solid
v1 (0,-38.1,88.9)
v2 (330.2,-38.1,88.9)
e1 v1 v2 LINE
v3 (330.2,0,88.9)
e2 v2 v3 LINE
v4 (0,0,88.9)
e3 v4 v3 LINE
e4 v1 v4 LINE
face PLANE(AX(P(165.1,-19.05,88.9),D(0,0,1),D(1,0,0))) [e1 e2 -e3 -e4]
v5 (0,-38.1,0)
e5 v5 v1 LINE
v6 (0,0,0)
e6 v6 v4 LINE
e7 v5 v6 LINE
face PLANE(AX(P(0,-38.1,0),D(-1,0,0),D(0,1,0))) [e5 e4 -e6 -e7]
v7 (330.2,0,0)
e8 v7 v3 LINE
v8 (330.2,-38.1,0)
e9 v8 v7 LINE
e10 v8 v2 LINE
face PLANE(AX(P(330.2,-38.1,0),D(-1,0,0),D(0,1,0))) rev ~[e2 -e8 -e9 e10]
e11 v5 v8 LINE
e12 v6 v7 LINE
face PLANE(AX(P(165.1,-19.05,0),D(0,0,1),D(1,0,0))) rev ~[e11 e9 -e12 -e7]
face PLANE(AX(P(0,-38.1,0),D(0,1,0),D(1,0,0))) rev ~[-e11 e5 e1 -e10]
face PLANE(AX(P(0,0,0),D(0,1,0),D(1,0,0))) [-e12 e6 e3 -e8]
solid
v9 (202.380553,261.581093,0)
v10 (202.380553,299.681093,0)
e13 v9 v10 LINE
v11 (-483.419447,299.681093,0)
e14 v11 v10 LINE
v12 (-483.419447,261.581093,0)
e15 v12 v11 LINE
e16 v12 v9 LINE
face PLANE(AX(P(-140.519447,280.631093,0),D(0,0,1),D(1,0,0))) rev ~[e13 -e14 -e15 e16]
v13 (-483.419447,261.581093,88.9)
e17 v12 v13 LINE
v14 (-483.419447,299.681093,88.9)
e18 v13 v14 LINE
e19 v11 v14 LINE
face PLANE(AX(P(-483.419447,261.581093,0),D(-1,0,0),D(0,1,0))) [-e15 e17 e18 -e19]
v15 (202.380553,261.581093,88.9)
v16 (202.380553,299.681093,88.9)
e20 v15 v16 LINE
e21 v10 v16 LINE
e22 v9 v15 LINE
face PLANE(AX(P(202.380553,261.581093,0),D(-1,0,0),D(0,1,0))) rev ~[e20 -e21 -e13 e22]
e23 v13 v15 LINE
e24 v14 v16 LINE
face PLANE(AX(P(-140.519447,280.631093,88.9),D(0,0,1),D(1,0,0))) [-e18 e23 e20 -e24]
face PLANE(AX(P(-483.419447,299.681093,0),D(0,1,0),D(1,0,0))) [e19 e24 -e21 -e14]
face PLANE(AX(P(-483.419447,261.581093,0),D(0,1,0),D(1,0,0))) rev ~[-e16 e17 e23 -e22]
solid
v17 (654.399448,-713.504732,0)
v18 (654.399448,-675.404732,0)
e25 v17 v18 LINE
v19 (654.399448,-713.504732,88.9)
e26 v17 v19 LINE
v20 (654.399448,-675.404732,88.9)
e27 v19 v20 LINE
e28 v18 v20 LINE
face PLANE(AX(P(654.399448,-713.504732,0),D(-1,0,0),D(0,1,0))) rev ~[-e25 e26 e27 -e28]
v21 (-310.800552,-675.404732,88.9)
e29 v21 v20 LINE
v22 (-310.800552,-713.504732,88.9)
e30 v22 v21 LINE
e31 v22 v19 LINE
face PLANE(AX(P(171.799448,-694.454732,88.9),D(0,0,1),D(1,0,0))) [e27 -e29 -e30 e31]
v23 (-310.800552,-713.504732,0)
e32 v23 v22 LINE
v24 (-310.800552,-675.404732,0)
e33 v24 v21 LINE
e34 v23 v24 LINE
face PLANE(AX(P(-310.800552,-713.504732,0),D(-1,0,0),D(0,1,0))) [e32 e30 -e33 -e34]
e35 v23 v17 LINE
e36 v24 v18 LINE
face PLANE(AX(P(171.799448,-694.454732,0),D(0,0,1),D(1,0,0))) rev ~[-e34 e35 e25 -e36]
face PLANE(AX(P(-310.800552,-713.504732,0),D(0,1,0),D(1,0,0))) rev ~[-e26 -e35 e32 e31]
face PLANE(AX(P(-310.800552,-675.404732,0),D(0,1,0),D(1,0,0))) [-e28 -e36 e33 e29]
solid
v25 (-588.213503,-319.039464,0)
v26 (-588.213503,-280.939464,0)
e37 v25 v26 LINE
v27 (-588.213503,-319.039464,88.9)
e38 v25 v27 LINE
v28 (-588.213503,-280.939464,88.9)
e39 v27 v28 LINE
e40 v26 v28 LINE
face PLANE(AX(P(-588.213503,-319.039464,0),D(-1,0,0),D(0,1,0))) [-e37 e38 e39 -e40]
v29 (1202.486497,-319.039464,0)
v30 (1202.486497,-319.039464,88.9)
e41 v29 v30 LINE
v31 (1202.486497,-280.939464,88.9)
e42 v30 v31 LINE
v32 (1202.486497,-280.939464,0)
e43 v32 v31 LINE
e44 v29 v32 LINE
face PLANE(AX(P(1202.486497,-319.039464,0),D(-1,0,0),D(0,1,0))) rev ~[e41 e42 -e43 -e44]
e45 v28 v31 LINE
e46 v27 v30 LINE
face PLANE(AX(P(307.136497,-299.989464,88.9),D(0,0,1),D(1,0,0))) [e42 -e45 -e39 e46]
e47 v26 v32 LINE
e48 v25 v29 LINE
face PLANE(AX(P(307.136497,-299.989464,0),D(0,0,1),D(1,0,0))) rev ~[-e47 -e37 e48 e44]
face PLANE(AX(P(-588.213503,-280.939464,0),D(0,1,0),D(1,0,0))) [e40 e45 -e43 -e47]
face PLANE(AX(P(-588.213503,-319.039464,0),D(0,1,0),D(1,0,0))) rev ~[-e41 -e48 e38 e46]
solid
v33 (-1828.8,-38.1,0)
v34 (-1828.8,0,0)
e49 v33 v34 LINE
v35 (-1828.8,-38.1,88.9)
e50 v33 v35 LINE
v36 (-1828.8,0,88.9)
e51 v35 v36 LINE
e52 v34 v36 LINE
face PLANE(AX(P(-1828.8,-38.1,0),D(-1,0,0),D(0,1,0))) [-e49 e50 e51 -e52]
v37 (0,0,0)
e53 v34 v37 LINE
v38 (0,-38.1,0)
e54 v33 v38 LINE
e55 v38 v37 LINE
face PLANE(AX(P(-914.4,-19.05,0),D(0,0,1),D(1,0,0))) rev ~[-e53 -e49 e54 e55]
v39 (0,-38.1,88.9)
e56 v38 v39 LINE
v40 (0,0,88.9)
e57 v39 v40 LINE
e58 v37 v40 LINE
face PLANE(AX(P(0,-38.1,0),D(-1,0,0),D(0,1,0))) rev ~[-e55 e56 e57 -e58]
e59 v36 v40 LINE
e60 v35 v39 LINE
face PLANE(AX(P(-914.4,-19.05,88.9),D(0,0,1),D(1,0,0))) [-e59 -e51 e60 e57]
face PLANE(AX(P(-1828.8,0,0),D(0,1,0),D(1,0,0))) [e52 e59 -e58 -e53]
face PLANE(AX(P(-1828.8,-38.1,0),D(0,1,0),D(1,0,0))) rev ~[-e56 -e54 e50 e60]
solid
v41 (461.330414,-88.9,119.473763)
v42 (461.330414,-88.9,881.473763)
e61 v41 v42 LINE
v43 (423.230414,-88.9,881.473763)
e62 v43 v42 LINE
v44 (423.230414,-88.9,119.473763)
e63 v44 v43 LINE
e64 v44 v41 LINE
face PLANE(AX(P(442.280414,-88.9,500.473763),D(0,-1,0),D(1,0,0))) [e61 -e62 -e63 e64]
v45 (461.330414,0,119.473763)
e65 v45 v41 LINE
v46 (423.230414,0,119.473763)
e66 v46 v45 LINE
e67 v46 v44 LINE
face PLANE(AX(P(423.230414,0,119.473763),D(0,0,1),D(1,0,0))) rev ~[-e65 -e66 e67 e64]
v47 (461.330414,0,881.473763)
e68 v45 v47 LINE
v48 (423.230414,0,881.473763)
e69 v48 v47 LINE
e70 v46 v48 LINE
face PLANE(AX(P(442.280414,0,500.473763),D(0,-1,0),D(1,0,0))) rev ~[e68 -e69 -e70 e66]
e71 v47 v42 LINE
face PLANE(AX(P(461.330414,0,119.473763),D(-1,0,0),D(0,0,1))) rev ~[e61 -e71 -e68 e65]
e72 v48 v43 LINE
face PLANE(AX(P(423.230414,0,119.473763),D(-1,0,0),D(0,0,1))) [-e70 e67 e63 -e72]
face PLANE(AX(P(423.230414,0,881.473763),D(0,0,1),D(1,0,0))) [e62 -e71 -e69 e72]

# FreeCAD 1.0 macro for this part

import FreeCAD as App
import Part
import Sketcher
Q = App.Units.Quantity


def add_polygon(sketch, points):
    """Adds a closed chain of lines whose ends are joined by coincident constraints."""
    first, n = sketch.GeometryCount, len(points)
    for a, b in zip(points, points[1:] + points[:1]):
        sketch.addGeometry(Part.LineSegment(App.Vector(*a, 0), App.Vector(*b, 0)), False)
    for i in range(n):
        sketch.addConstraint(Sketcher.Constraint("Coincident", first + i, 2, first + (i + 1) % n, 1))

doc = App.newDocument("Part")
params = doc.addObject("Spreadsheet::Sheet", "Params")
for row, (alias, value) in enumerate([
    ("sketch1_width", "72 in"),
    ("sketch1_height", "1.5 in"),
    ("pad1_length", "3.5 in"),
    ("sketch2_width", "13 in"),
    ("sketch2_height", "1.5 in"),
    ("pad2_length", "3.5 in"),
    ("sketch3_width", "70.5 in"),
    ("sketch3_height", "1.5 in"),
    ("pad3_length", "3.5 in"),
    ("sketch4_width", "38 in"),
    ("sketch4_height", "1.5 in"),
    ("pad4_length", "3.5 in"),
    ("sketch5_width", "27 in"),
    ("sketch5_height", "1.5 in"),
    ("pad5_length", "3.5 in"),
    ("sketch6_height", "30 in"),
    ("sketch6_width", "1.5 in"),
    ("pad6_length", "3.5 in"),
], start=1):
    params.set(f"A{row}", alias)
    params.set(f"B{row}", "=" + value)
    params.setAlias(f"B{row}", alias)

body = doc.addObject("PartDesign::Body", "Body")

# Sketch on XY plane
sketch1 = body.newObject("Sketcher::SketchObject", "Sketch")
sketch1.AttachmentSupport = (doc.getObject("XY_Plane"), [""])
sketch1.MapMode = "FlatFace"
add_polygon(sketch1, [(-1828.8, 0), (-1828.8, -38.1), (0, -38.1), (0, 0)])  # lines 0-3
sketch1.addConstraint([
    Sketcher.Constraint("Vertical", 0),
    Sketcher.Constraint("Horizontal", 1),
    Sketcher.Constraint("Vertical", 2),
    Sketcher.Constraint("Horizontal", 3),
    Sketcher.Constraint("Coincident", 2, 2, -1, 1),
    Sketcher.Constraint("DistanceX", 1, 1, 1, 2, Q("72 in")),
    Sketcher.Constraint("DistanceY", 0, 2, 0, 1, Q("1.5 in")),
])
sketch1.setExpression("Constraints[9]", "Params.sketch1_width")
sketch1.setExpression("Constraints[10]", "Params.sketch1_height")
pad1 = body.newObject("PartDesign::Pad", "Pad")
pad1.Profile = sketch1
pad1.setExpression("Length", "Params.pad1_length")
body2 = doc.addObject("PartDesign::Body", "Body001")

# Sketch on XY plane
sketch2 = body2.newObject("Sketcher::SketchObject", "Sketch001")
sketch2.AttachmentSupport = (doc.getObject("XY_Plane001"), [""])
sketch2.MapMode = "FlatFace"
add_polygon(sketch2, [(0, 0), (0, -38.1), (330.2, -38.1), (330.2, 0)])  # lines 0-3
sketch2.addConstraint([
    Sketcher.Constraint("Vertical", 0),
    Sketcher.Constraint("Horizontal", 1),
    Sketcher.Constraint("Vertical", 2),
    Sketcher.Constraint("Horizontal", 3),
    Sketcher.Constraint("Coincident", 3, 2, -1, 1),
    Sketcher.Constraint("DistanceX", 1, 1, 1, 2, Q("13 in")),
    Sketcher.Constraint("DistanceY", 0, 2, 0, 1, Q("1.5 in")),
])
sketch2.setExpression("Constraints[9]", "Params.sketch2_width")
sketch2.setExpression("Constraints[10]", "Params.sketch2_height")
pad2 = body2.newObject("PartDesign::Pad", "Pad001")
pad2.Profile = sketch2
pad2.setExpression("Length", "Params.pad2_length")
body3 = doc.addObject("PartDesign::Body", "Body002")

# Sketch on XY plane
sketch3 = body3.newObject("Sketcher::SketchObject", "Sketch002")
sketch3.AttachmentSupport = (doc.getObject("XY_Plane002"), [""])
sketch3.MapMode = "FlatFace"
add_polygon(sketch3, [(-588.213503, -280.939464), (-588.213503, -319.039464), (1202.486497, -319.039464), (1202.486497, -280.939464)])  # lines 0-3
sketch3.addConstraint([
    Sketcher.Constraint("Vertical", 0),
    Sketcher.Constraint("Horizontal", 1),
    Sketcher.Constraint("Vertical", 2),
    Sketcher.Constraint("Horizontal", 3),
    Sketcher.Constraint("DistanceX", 1, 1, 1, 2, Q("70.5 in")),
    Sketcher.Constraint("DistanceY", 0, 2, 0, 1, Q("1.5 in")),
    Sketcher.Constraint("DistanceX", 0, 2, -1, 1, 588.213503),
    Sketcher.Constraint("DistanceY", 0, 2, -1, 1, 319.039464),
])
sketch3.setExpression("Constraints[8]", "Params.sketch3_width")
sketch3.setExpression("Constraints[9]", "Params.sketch3_height")
pad3 = body3.newObject("PartDesign::Pad", "Pad002")
pad3.Profile = sketch3
pad3.setExpression("Length", "Params.pad3_length")
body4 = doc.addObject("PartDesign::Body", "Body003")

# Sketch on XY plane
sketch4 = body4.newObject("Sketcher::SketchObject", "Sketch003")
sketch4.AttachmentSupport = (doc.getObject("XY_Plane003"), [""])
sketch4.MapMode = "FlatFace"
add_polygon(sketch4, [(-310.800552, -675.404732), (-310.800552, -713.504732), (654.399448, -713.504732), (654.399448, -675.404732)])  # lines 0-3
sketch4.addConstraint([
    Sketcher.Constraint("Vertical", 0),
    Sketcher.Constraint("Horizontal", 1),
    Sketcher.Constraint("Vertical", 2),
    Sketcher.Constraint("Horizontal", 3),
    Sketcher.Constraint("DistanceX", 1, 1, 1, 2, Q("38 in")),
    Sketcher.Constraint("DistanceY", 0, 2, 0, 1, Q("1.5 in")),
    Sketcher.Constraint("DistanceX", 0, 2, -1, 1, 310.800552),
    Sketcher.Constraint("DistanceY", 0, 2, -1, 1, 713.504732),
])
sketch4.setExpression("Constraints[8]", "Params.sketch4_width")
sketch4.setExpression("Constraints[9]", "Params.sketch4_height")
pad4 = body4.newObject("PartDesign::Pad", "Pad003")
pad4.Profile = sketch4
pad4.setExpression("Length", "Params.pad4_length")
body5 = doc.addObject("PartDesign::Body", "Body004")

# Sketch on XY plane
sketch5 = body5.newObject("Sketcher::SketchObject", "Sketch004")
sketch5.AttachmentSupport = (doc.getObject("XY_Plane004"), [""])
sketch5.MapMode = "FlatFace"
add_polygon(sketch5, [(-483.419447, 299.681093), (-483.419447, 261.581093), (202.380553, 261.581093), (202.380553, 299.681093)])  # lines 0-3
sketch5.addConstraint([
    Sketcher.Constraint("Vertical", 0),
    Sketcher.Constraint("Horizontal", 1),
    Sketcher.Constraint("Vertical", 2),
    Sketcher.Constraint("Horizontal", 3),
    Sketcher.Constraint("DistanceX", 1, 1, 1, 2, Q("27 in")),
    Sketcher.Constraint("DistanceY", 0, 2, 0, 1, Q("1.5 in")),
    Sketcher.Constraint("DistanceX", 0, 2, -1, 1, 483.419447),
    Sketcher.Constraint("DistanceY", -1, 1, 0, 2, 261.581093),
])
sketch5.setExpression("Constraints[8]", "Params.sketch5_width")
sketch5.setExpression("Constraints[9]", "Params.sketch5_height")
pad5 = body5.newObject("PartDesign::Pad", "Pad004")
pad5.Profile = sketch5
pad5.setExpression("Length", "Params.pad5_length")
body6 = doc.addObject("PartDesign::Body", "Body005")

# Sketch on XZ plane
sketch6 = body6.newObject("Sketcher::SketchObject", "Sketch005")
sketch6.AttachmentSupport = (doc.getObject("XZ_Plane005"), [""])
sketch6.MapMode = "FlatFace"
add_polygon(sketch6, [(423.230414, 881.473763), (423.230414, 119.473763), (461.330414, 119.473763), (461.330414, 881.473763)])  # lines 0-3
sketch6.addConstraint([
    Sketcher.Constraint("Vertical", 0),
    Sketcher.Constraint("Horizontal", 1),
    Sketcher.Constraint("Vertical", 2),
    Sketcher.Constraint("Horizontal", 3),
    Sketcher.Constraint("DistanceY", 0, 2, 0, 1, Q("30 in")),
    Sketcher.Constraint("DistanceX", 1, 1, 1, 2, Q("1.5 in")),
    Sketcher.Constraint("DistanceX", -1, 1, 0, 2, 423.230414),
    Sketcher.Constraint("DistanceY", -1, 1, 0, 2, 119.473763),
])
sketch6.setExpression("Constraints[8]", "Params.sketch6_height")
sketch6.setExpression("Constraints[9]", "Params.sketch6_width")
pad6 = body6.newObject("PartDesign::Pad", "Pad005")
pad6.Profile = sketch6
pad6.setExpression("Length", "Params.pad6_length")

doc.recompute()
